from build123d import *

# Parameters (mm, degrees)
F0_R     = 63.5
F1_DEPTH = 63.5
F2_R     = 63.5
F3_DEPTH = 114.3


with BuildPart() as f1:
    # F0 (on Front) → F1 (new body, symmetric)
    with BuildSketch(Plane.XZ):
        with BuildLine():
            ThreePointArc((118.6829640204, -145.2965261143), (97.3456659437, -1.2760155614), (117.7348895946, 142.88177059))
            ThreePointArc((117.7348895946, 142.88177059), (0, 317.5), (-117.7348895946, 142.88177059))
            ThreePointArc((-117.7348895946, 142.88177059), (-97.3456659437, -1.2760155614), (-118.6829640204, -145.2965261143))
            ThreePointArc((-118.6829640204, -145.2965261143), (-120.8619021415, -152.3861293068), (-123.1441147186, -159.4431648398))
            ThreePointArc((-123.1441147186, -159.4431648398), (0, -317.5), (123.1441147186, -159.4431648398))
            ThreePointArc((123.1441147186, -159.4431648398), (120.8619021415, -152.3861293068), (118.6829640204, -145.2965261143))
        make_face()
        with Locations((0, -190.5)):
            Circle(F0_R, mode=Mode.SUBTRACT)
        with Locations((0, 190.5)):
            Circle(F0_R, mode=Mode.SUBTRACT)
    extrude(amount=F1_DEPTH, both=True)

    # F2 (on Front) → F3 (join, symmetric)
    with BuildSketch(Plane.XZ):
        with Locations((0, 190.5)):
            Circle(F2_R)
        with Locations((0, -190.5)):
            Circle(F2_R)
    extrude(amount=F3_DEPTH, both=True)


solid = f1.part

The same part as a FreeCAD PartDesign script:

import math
import FreeCAD as App
import Part
import Sketcher
Q = App.Units.Quantity

doc = App.newDocument("Part")
params = doc.addObject("Spreadsheet::Sheet", "Params")
for row, (alias, value) in enumerate([
    ("sketch1_diameter", "5 in"),
    ("sketch1_radius", "20 in"),
    ("sketch1_radius2", "5 in"),
    ("pad1_length", "5 in"),
    ("sketch2_diameter", "5 in"),
    ("pad2_length", "9 in"),
], start=1):
    params.set(f"A{row}", alias)
    params.set(f"B{row}", "=" + value)
    params.setAlias(f"B{row}", alias)

body = doc.addObject("PartDesign::Body", "Body")

# Sketch on XZ plane
sketch1 = body.newObject("Sketcher::SketchObject", "Sketch")
sketch1.AttachmentSupport = (doc.getObject("XZ_Plane"), [""])
sketch1.MapMode = "FlatFace"
sketch1.addGeometry(Part.ArcOfCircle(Part.Circle(App.Vector(605, 0, 0), App.Vector(0, 0, 1), 508), math.radians(164), math.radians(197)), False)
sketch1.addGeometry(Part.ArcOfCircle(Part.Circle(App.Vector(0, 190, 0), App.Vector(0, 0, 1), 127), math.radians(-22), math.radians(202)), False)
sketch1.addGeometry(Part.ArcOfCircle(Part.Circle(App.Vector(-605, 0, 0), App.Vector(0, 0, 1), 508), math.radians(-17), math.radians(16)), False)
sketch1.addGeometry(Part.ArcOfCircle(Part.Circle(App.Vector(-605, 0, 0), App.Vector(0, 0, 1), 508), math.radians(-18.34), math.radians(-16.67)), False)
sketch1.addGeometry(Part.ArcOfCircle(Part.Circle(App.Vector(0, -190, 0), App.Vector(0, 0, 1), 127), math.radians(166), math.radians(374)), False)
sketch1.addGeometry(Part.ArcOfCircle(Part.Circle(App.Vector(605, 0, 0), App.Vector(0, 0, 1), 508), math.radians(-163.33), math.radians(-161.66)), False)
sketch1.addGeometry(Part.Circle(App.Vector(0, -190, 0), App.Vector(0, 0, 1), 64), False)
sketch1.addGeometry(Part.Circle(App.Vector(0, 190, 0), App.Vector(0, 0, 1), 64), False)
sketch1.addConstraint(Sketcher.Constraint("Coincident", 0, 1, 1, 1))
sketch1.addConstraint(Sketcher.Constraint("Coincident", 1, 2, 2, 2))
sketch1.addConstraint(Sketcher.Constraint("Coincident", 2, 1, 3, 2))
sketch1.addConstraint(Sketcher.Constraint("Coincident", 3, 1, 4, 1))
sketch1.addConstraint(Sketcher.Constraint("Coincident", 4, 2, 5, 2))
sketch1.addConstraint(Sketcher.Constraint("Coincident", 5, 1, 0, 2))
sketch1.addConstraint(Sketcher.Constraint("Coincident", 3, 3, 2, 3))
sketch1.addConstraint(Sketcher.Constraint("Coincident", 5, 3, 0, 3))
sketch1.addConstraint(Sketcher.Constraint("Coincident", 6, 3, 4, 3))
sketch1.addConstraint(Sketcher.Constraint("Coincident", 7, 3, 1, 3))
sketch1.addConstraint(Sketcher.Constraint("Equal", 0, 2))
sketch1.addConstraint(Sketcher.Constraint("Equal", 1, 4))
sketch1.addConstraint(Sketcher.Constraint("Equal", 6, 7))
sketch1.addConstraint(Sketcher.Constraint("Symmetric", 1, 3, 4, 3, -1, 1))
sketch1.addConstraint(Sketcher.Constraint("Symmetric", 0, 3, 2, 3, -2))
sketch1.addConstraint(Sketcher.Constraint("PointOnObject", 1, 3, -2))
sketch1.addConstraint(Sketcher.Constraint("Horizontal", 2, 1, 5, 1))
sketch1.addConstraint(Sketcher.Constraint("Diameter", 6, Q("5 in")))
sketch1.addConstraint(Sketcher.Constraint("Radius", 0, Q("20 in")))
sketch1.addConstraint(Sketcher.Constraint("Radius", 1, Q("5 in")))
sketch1.addConstraint(Sketcher.Constraint("DistanceY", 4, 3, 1, 3, Q("15 in")))
sketch1.addConstraint(Sketcher.Constraint("DistanceY", -1, 1, 0, 3, 0.395239))
sketch1.addConstraint(Sketcher.Constraint("DistanceX", -1, 1, 0, 1, 117.73489))
sketch1.addConstraint(Sketcher.Constraint("DistanceX", 3, 1, 2, 1, 4.461151))
sketch1.setExpression("Constraints[17]", "Params.sketch1_diameter")
sketch1.setExpression("Constraints[18]", "Params.sketch1_radius")
sketch1.setExpression("Constraints[19]", "Params.sketch1_radius2")
pad1 = body.newObject("PartDesign::Pad", "Pad")
pad1.Profile = sketch1
pad1.setExpression("Length", "Params.pad1_length")
pad1.Midplane = True

# Sketch on XZ plane
sketch2 = body.newObject("Sketcher::SketchObject", "Sketch001")
sketch2.AttachmentSupport = (doc.getObject("XZ_Plane"), [""])
sketch2.MapMode = "FlatFace"
sketch2.addGeometry(Part.Circle(App.Vector(0, 190, 0), App.Vector(0, 0, 1), 64), False)
sketch2.addGeometry(Part.Circle(App.Vector(0, -190, 0), App.Vector(0, 0, 1), 64), False)
sketch2.addConstraint(Sketcher.Constraint("Equal", 0, 1))
sketch2.addConstraint(Sketcher.Constraint("Symmetric", 0, 3, 1, 3, -1, 1))
sketch2.addConstraint(Sketcher.Constraint("PointOnObject", 0, 3, -2))
sketch2.addConstraint(Sketcher.Constraint("Diameter", 0, Q("5 in")))
sketch2.addConstraint(Sketcher.Constraint("DistanceY", 1, 3, 0, 3, Q("15 in")))
sketch2.setExpression("Constraints[3]", "Params.sketch2_diameter")
pad2 = body.newObject("PartDesign::Pad", "Pad001")
pad2.Profile = sketch2
pad2.setExpression("Length", "Params.pad2_length")
pad2.Midplane = True

doc.recompute()
